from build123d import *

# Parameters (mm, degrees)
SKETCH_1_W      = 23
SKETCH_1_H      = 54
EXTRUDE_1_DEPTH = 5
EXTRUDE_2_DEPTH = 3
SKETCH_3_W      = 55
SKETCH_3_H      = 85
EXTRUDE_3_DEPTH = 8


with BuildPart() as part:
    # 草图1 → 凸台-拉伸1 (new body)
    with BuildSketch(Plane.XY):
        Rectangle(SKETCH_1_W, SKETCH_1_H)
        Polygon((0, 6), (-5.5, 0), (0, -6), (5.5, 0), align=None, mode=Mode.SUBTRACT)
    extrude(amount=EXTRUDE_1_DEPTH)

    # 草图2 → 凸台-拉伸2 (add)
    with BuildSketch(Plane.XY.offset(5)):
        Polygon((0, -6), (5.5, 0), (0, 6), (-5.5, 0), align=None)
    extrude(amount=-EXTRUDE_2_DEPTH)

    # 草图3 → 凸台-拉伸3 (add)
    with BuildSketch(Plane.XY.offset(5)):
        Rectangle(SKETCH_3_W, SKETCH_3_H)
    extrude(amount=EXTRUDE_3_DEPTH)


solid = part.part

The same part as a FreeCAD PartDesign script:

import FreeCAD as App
import Part
import Sketcher

doc = App.newDocument("Part")
body = doc.addObject("PartDesign::Body", "Body")

# Sketch on XY plane
sketch1 = body.newObject("Sketcher::SketchObject", "Sketch")
sketch1.AttachmentSupport = (doc.getObject("XY_Plane"), [""])
sketch1.MapMode = "FlatFace"
sketch1.addGeometry([
    Part.LineSegment(App.Vector(-12, 27, 0), App.Vector(-12, -27, 0)),  # 0
    Part.LineSegment(App.Vector(-12, -27, 0), App.Vector(12, -27, 0)),  # 1
    Part.LineSegment(App.Vector(12, -27, 0), App.Vector(12, 27, 0)),  # 2
    Part.LineSegment(App.Vector(12, 27, 0), App.Vector(-12, 27, 0)),  # 3
    Part.LineSegment(App.Vector(-6, 0, 0), App.Vector(0, 6, 0)),  # 4
    Part.LineSegment(App.Vector(0, 6, 0), App.Vector(6, 0, 0)),  # 5
    Part.LineSegment(App.Vector(6, 0, 0), App.Vector(0, -6, 0)),  # 6
    Part.LineSegment(App.Vector(0, -6, 0), App.Vector(-6, 0, 0)),  # 7
], False)
sketch1.addConstraint([
    Sketcher.Constraint("Coincident", 0, 2, 1, 1),
    Sketcher.Constraint("Coincident", 1, 2, 2, 1),
    Sketcher.Constraint("Coincident", 2, 2, 3, 1),
    Sketcher.Constraint("Coincident", 3, 2, 0, 1),
    Sketcher.Constraint("Coincident", 4, 2, 5, 1),
    Sketcher.Constraint("Coincident", 5, 2, 6, 1),
    Sketcher.Constraint("Coincident", 6, 2, 7, 1),
    Sketcher.Constraint("Coincident", 7, 2, 4, 1),
    Sketcher.Constraint("Vertical", 0),
    Sketcher.Constraint("Horizontal", 1),
    Sketcher.Constraint("Vertical", 2),
    Sketcher.Constraint("Horizontal", 3),
    Sketcher.Constraint("Symmetric", 0, 2, 2, 2, -1, 1),
    Sketcher.Constraint("Symmetric", 4, 2, 6, 2, -1, 1),
    Sketcher.Constraint("Symmetric", 5, 2, 7, 2, -1, 1),
    Sketcher.Constraint("PointOnObject", 4, 2, -2),
    Sketcher.Constraint("PointOnObject", 5, 2, -1),
    Sketcher.Constraint("DistanceX", 1, 1, 1, 2, 23.0),
    Sketcher.Constraint("DistanceY", 0, 2, 0, 1, 54.0),
    Sketcher.Constraint("DistanceY", -1, 1, 4, 2, 6.0),
    Sketcher.Constraint("DistanceX", 5, 2, 1, 2, 6.0),
])
pad1 = body.newObject("PartDesign::Pad", "Pad")
pad1.Profile = sketch1
pad1.Length = 5

# Sketch on XY plane
sketch2 = body.newObject("Sketcher::SketchObject", "Sketch001")
sketch2.AttachmentSupport = (doc.getObject("XY_Plane"), [""])
sketch2.MapMode = "FlatFace"
sketch2.AttachmentOffset = App.Placement(App.Vector(0, 0, 5), App.Rotation())
sketch2.addGeometry([
    Part.LineSegment(App.Vector(0, -6, 0), App.Vector(6, 0, 0)),
    Part.LineSegment(App.Vector(6, 0, 0), App.Vector(0, 6, 0)),
    Part.LineSegment(App.Vector(0, 6, 0), App.Vector(-6, 0, 0)),
    Part.LineSegment(App.Vector(-6, 0, 0), App.Vector(0, -6, 0)),
], False)
sketch2.addConstraint([
    Sketcher.Constraint("Coincident", 0, 2, 1, 1),
    Sketcher.Constraint("Coincident", 1, 2, 2, 1),
    Sketcher.Constraint("Coincident", 2, 2, 3, 1),
    Sketcher.Constraint("Coincident", 3, 2, 0, 1),
    Sketcher.Constraint("Symmetric", 0, 2, 2, 2, -1, 1),
    Sketcher.Constraint("Symmetric", 1, 2, 3, 2, -1, 1),
    Sketcher.Constraint("PointOnObject", 0, 2, -1),
    Sketcher.Constraint("PointOnObject", 1, 2, -2),
    Sketcher.Constraint("DistanceY", -1, 1, 1, 2, 6.0),
    Sketcher.Constraint("DistanceX", 2, 2, 0, 2, 11.0),
])
pad2 = body.newObject("PartDesign::Pad", "Pad001")
pad2.Profile = sketch2
pad2.Length = 3
pad2.Reversed = True

# Sketch on XY plane
sketch3 = body.newObject("Sketcher::SketchObject", "Sketch002")
sketch3.AttachmentSupport = (doc.getObject("XY_Plane"), [""])
sketch3.MapMode = "FlatFace"
sketch3.AttachmentOffset = App.Placement(App.Vector(0, 0, 5), App.Rotation())
sketch3.addGeometry([
    Part.LineSegment(App.Vector(-28, 42, 0), App.Vector(-28, -42, 0)),
    Part.LineSegment(App.Vector(-28, -42, 0), App.Vector(28, -42, 0)),
    Part.LineSegment(App.Vector(28, -42, 0), App.Vector(28, 42, 0)),
    Part.LineSegment(App.Vector(28, 42, 0), App.Vector(-28, 42, 0)),
], False)
sketch3.addConstraint([
    Sketcher.Constraint("Coincident", 0, 2, 1, 1),
    Sketcher.Constraint("Coincident", 1, 2, 2, 1),
    Sketcher.Constraint("Coincident", 2, 2, 3, 1),
    Sketcher.Constraint("Coincident", 3, 2, 0, 1),
    Sketcher.Constraint("Vertical", 0),
    Sketcher.Constraint("Horizontal", 1),
    Sketcher.Constraint("Vertical", 2),
    Sketcher.Constraint("Horizontal", 3),
    Sketcher.Constraint("Symmetric", 0, 2, 2, 2, -1, 1),
    Sketcher.Constraint("DistanceX", 1, 1, 1, 2, 55.0),
    Sketcher.Constraint("DistanceY", 0, 2, 0, 1, 85.0),
])
pad3 = body.newObject("PartDesign::Pad", "Pad002")
pad3.Profile = sketch3
pad3.Length = 8

doc.recompute()
